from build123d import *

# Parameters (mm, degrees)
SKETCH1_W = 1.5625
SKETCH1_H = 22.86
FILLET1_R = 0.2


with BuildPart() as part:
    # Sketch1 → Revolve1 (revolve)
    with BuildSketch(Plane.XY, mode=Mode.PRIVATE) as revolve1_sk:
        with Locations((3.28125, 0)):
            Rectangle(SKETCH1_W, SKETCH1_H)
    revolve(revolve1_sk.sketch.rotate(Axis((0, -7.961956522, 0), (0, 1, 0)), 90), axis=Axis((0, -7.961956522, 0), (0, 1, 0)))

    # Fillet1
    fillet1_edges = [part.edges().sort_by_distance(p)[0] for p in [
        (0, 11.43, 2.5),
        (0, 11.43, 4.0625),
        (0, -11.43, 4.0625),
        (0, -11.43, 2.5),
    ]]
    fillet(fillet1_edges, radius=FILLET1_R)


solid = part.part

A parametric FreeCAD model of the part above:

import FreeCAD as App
import Part
import Sketcher

V = App.Vector
Q = App.Units.Quantity


def edges_at(feature, points):
    """Names of the edges that pass closest to the given points."""
    edges = feature.Shape.Edges
    near = lambda p: min(range(len(edges)), key=lambda i: edges[i].distToShape(Part.Vertex(*p))[0])
    return sorted({f"Edge{near(p) + 1}" for p in points})

doc = App.newDocument("Part")
body = doc.addObject("PartDesign::Body", "Body")

sketch1 = body.newObject("Sketcher::SketchObject", "Sketch")
sketch1.AttachmentSupport = (doc.getObject("XY_Plane"), [""])
sketch1.MapMode = "FlatFace"
sketch1.addGeometry([
    Part.LineSegment(V(2.5, 11.4, 0), V(2.5, -11.4, 0)),
    Part.LineSegment(V(2.5, -11.4, 0), V(4.1, -11.4, 0)),
    Part.LineSegment(V(4.1, -11.4, 0), V(4.1, 11.4, 0)),
    Part.LineSegment(V(4.1, 11.4, 0), V(2.5, 11.4, 0)),
], False)
sketch1.addConstraint([
    Sketcher.Constraint("Coincident", 0, 2, 1, 1),
    Sketcher.Constraint("Coincident", 1, 2, 2, 1),
    Sketcher.Constraint("Coincident", 2, 2, 3, 1),
    Sketcher.Constraint("Coincident", 3, 2, 0, 1),
    Sketcher.Constraint("Vertical", 0),
    Sketcher.Constraint("Horizontal", 1),
    Sketcher.Constraint("Vertical", 2),
    Sketcher.Constraint("Horizontal", 3),
    Sketcher.Constraint("DistanceY", 0, 2, 0, 1, Q("22.86 mm")),
    Sketcher.Constraint("DistanceX", -1, 1, 0, 2, Q("2.5 mm")),
    Sketcher.Constraint("DistanceY", 0, 2, -1, 1, Q("11.43 mm")),
    Sketcher.Constraint("DistanceX", 1, 1, 1, 2, Q("1.5625 mm")),
])
revolution = body.newObject("PartDesign::Revolution", "Revolution")
revolution.Profile = sketch1
revolution.ReferenceAxis = (sketch1, ["V_Axis"])
revolution.Angle = 360
doc.recompute()

fillet = body.newObject("PartDesign::Fillet", "Fillet")
fillet.Base = (revolution, edges_at(revolution, [
    (0, 11.43, 2.5),
    (0, 11.43, 4.062),
    (0, -11.43, 4.062),
    (0, -11.43, 2.5),
]))
fillet.Radius = 0.2

doc.recompute()
